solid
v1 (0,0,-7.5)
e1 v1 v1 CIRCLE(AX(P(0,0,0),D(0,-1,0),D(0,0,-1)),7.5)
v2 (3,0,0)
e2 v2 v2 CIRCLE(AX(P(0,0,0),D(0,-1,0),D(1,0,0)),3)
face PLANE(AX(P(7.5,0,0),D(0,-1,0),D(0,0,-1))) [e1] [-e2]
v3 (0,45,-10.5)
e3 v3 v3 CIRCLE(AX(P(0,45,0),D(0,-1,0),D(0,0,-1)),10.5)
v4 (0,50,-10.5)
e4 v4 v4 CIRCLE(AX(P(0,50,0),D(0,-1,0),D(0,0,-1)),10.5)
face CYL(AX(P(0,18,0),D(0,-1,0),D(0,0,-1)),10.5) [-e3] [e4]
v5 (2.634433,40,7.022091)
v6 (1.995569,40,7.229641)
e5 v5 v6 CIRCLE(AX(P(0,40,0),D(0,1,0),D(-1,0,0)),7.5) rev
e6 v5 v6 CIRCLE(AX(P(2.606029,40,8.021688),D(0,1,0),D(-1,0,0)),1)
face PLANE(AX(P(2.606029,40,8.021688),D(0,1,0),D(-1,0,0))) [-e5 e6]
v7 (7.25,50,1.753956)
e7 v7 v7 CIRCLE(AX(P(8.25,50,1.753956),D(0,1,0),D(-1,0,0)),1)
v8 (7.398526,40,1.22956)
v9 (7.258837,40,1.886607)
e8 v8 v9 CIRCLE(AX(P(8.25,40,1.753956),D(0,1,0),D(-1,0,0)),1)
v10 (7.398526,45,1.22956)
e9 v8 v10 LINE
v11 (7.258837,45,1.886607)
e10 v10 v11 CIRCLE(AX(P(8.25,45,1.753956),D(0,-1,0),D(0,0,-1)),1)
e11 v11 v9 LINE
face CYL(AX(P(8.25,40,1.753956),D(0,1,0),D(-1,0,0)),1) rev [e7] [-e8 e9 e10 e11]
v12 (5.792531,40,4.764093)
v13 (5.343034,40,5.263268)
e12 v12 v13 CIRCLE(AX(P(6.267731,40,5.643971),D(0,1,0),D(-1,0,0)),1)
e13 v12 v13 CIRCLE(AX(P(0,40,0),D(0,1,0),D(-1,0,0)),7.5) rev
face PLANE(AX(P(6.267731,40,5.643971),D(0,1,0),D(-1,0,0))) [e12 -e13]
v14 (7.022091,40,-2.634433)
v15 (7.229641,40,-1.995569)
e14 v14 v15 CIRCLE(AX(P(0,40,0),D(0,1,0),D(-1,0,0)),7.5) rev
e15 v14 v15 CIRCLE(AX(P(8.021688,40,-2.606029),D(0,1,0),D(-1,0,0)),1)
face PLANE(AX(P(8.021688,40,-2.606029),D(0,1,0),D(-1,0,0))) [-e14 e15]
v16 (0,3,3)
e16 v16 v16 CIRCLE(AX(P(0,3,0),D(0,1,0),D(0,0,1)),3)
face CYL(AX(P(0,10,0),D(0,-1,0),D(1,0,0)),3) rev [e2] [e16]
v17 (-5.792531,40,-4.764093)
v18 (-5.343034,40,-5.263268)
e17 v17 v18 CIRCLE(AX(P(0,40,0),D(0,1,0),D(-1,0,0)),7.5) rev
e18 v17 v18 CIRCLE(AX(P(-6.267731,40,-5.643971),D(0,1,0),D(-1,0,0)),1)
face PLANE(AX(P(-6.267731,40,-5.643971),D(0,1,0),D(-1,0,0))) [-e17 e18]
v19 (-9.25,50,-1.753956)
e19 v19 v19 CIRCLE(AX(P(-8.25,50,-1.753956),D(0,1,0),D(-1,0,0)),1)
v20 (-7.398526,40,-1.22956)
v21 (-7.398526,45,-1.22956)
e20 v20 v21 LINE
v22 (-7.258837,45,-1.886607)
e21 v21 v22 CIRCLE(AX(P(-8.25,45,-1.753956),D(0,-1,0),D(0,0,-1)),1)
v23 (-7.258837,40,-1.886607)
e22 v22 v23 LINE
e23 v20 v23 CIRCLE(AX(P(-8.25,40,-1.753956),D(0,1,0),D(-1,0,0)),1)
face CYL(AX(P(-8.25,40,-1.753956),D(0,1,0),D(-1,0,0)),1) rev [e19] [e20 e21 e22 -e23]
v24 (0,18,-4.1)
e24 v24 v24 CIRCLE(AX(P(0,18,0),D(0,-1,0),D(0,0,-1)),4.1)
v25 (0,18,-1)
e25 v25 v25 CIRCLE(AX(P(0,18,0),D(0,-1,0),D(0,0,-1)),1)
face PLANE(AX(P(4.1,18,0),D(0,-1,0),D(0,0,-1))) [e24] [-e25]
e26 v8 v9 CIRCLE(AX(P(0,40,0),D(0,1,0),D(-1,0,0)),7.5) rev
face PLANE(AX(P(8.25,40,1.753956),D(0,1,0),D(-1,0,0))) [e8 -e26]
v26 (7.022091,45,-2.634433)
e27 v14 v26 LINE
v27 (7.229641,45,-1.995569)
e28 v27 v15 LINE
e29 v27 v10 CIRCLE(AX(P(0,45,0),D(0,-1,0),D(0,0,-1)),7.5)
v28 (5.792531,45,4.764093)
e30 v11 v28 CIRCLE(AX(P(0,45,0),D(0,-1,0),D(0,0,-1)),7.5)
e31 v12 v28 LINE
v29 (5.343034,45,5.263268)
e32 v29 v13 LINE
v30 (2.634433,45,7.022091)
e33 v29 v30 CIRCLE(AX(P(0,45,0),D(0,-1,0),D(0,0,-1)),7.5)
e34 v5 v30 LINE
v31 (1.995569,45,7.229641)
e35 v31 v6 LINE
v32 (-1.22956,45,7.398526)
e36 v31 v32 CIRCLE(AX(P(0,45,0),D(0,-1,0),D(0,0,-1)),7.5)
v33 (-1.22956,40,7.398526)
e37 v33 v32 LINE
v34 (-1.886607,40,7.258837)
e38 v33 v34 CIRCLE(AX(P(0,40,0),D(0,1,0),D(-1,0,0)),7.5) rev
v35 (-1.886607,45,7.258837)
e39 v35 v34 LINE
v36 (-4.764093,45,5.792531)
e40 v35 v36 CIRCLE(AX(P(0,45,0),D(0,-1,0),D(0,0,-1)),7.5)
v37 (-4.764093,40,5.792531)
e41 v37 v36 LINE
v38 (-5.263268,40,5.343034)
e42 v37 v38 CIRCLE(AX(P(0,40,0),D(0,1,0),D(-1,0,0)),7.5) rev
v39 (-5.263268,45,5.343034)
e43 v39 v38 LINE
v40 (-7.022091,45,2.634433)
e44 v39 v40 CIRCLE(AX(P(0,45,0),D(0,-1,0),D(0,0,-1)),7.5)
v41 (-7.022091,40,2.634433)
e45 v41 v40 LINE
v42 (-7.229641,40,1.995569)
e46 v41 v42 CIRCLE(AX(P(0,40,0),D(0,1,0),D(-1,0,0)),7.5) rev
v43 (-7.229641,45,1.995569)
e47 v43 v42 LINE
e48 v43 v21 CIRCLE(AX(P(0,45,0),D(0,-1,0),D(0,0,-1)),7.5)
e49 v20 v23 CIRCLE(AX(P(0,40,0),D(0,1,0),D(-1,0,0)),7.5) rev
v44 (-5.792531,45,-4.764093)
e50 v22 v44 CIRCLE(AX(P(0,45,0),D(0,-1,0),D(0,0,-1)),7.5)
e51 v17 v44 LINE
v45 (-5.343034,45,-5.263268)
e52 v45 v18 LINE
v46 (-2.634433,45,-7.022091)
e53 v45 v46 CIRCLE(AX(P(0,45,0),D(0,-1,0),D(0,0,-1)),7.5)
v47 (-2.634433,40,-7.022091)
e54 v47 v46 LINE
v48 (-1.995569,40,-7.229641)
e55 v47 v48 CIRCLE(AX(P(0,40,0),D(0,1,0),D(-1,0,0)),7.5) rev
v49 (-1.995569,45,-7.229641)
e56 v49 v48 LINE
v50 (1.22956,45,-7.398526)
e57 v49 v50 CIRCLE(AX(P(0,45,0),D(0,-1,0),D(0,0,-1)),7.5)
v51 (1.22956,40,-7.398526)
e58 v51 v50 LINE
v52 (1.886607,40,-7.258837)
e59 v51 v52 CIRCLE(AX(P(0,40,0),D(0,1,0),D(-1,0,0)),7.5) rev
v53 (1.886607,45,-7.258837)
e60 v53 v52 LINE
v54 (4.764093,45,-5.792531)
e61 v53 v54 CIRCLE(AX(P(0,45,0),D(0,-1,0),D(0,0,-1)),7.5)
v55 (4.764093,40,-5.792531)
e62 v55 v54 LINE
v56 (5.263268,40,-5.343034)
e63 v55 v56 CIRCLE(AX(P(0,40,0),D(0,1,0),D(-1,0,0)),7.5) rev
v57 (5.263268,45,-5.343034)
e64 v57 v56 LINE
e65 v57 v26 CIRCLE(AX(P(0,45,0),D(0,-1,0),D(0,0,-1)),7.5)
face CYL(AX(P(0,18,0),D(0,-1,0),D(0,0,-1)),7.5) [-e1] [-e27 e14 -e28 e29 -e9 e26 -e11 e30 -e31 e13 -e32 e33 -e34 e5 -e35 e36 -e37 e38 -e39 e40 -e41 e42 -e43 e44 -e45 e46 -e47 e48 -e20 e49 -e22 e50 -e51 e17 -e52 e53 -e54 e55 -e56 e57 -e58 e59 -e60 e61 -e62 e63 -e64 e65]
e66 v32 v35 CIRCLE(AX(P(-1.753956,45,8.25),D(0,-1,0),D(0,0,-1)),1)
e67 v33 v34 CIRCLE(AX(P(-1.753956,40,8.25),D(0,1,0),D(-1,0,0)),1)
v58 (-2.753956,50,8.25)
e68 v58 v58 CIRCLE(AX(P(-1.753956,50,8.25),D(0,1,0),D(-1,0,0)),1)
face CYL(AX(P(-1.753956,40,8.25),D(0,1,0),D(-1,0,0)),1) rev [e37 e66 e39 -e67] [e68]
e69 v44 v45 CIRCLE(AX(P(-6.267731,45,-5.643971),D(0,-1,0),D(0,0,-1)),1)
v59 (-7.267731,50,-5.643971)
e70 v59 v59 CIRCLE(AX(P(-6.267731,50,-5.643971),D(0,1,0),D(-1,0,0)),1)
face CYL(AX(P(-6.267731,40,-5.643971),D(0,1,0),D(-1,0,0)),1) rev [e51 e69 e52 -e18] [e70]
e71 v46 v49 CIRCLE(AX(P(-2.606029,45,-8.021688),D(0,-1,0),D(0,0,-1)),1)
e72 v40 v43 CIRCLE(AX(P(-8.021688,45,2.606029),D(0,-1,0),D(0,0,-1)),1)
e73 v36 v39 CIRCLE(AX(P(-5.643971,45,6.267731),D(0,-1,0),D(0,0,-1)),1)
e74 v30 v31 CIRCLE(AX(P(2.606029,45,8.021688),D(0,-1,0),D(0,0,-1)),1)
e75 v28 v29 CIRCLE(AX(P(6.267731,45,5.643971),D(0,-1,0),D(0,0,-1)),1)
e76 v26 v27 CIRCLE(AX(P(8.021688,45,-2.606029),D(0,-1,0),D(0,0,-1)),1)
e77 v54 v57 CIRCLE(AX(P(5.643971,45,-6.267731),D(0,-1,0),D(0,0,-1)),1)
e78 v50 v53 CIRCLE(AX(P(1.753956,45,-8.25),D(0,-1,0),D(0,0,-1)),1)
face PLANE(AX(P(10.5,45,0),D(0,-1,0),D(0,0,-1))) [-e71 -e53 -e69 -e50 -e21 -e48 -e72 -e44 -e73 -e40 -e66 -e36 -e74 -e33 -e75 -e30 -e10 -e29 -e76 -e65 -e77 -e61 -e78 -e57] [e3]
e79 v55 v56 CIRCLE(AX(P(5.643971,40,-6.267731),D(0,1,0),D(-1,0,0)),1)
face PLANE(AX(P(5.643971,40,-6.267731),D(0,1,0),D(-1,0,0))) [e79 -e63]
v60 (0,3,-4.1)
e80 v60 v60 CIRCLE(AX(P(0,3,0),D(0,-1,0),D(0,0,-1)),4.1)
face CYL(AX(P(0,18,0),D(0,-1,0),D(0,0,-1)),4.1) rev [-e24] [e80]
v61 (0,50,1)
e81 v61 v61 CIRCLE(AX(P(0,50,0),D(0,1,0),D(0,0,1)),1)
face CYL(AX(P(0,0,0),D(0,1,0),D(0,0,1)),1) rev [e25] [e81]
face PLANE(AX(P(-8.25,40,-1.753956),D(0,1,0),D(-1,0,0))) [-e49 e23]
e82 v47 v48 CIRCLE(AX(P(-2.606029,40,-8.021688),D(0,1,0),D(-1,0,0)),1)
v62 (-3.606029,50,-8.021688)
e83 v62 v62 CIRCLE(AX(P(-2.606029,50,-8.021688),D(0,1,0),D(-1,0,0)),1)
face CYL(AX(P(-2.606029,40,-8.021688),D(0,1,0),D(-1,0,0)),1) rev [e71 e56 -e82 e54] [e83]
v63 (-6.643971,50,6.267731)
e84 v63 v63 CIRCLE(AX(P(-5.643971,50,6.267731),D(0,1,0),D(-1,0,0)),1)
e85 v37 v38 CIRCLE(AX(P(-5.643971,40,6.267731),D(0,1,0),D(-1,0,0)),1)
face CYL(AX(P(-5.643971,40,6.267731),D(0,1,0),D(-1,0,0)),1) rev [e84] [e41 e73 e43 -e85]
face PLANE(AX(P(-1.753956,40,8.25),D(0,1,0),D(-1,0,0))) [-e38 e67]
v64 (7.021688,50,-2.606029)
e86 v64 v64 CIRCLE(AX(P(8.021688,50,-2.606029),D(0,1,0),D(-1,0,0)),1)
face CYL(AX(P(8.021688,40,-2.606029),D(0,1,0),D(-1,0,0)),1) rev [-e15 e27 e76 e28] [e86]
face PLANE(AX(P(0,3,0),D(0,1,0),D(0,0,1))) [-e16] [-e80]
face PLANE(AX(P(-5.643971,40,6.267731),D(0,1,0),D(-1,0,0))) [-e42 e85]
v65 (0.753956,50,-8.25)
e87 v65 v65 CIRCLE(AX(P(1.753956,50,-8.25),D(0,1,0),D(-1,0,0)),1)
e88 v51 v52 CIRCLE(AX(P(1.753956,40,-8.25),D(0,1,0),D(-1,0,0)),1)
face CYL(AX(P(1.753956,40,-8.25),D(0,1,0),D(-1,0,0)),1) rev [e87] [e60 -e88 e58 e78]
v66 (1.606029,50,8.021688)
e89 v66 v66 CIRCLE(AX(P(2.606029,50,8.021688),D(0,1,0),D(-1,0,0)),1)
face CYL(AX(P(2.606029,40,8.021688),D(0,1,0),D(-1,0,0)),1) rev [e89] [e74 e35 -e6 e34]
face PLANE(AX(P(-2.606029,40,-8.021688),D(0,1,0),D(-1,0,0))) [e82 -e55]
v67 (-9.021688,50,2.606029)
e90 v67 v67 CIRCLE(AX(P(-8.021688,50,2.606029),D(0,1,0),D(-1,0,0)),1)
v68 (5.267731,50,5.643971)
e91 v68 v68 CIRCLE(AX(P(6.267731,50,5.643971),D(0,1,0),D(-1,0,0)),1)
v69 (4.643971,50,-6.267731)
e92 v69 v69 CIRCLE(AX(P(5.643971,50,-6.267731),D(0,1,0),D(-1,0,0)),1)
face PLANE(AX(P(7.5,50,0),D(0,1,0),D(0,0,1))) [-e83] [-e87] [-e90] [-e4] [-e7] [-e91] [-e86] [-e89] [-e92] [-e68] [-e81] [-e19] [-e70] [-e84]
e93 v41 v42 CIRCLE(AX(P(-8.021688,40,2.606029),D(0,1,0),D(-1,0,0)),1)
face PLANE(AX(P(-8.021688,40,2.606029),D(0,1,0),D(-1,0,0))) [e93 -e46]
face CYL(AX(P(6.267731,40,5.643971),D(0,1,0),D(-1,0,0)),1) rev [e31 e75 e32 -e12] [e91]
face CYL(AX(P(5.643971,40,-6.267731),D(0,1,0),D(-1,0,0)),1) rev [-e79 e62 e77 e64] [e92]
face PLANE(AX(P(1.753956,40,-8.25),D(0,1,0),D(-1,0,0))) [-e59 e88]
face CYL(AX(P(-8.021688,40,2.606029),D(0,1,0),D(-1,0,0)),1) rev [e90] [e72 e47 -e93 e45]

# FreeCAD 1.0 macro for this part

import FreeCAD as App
import Part
import Sketcher
from FreeCAD import Vector


def add_polygon(sketch, points):
    """Adds a closed chain of lines whose ends are joined by coincident constraints."""
    first, n = sketch.GeometryCount, len(points)
    for a, b in zip(points, points[1:] + points[:1]):
        sketch.addGeometry(Part.LineSegment(App.Vector(*a, 0), App.Vector(*b, 0)), False)
    for i in range(n):
        sketch.addConstraint(Sketcher.Constraint("Coincident", first + i, 2, first + (i + 1) % n, 1))

doc = App.newDocument("Part")
params = doc.addObject("Spreadsheet::Sheet", "Params")
for row, (alias, value) in enumerate([
    ("sketch1_width", "3 mm"),
    ("sketch1_height", "45 mm"),
    ("sketch1_height2", "5 mm"),
    ("sketch1_height3", "32 mm"),
    ("sketch1_width2", "7.5 mm"),
    ("revolution_angle", "360 deg"),
    ("sketch2_diameter", "2 mm"),
    ("pocket1_length", "10 mm"),
    ("sketch3_diameter", "6 mm"),
    ("pocket2_length", "10 mm"),
    ("sketch4_diameter", "2 mm"),
], start=1):
    params.set(f"A{row}", alias)
    params.set(f"B{row}", "=" + value)
    params.setAlias(f"B{row}", alias)

body = doc.addObject("PartDesign::Body", "Body")

# Sketch on XY plane
sketch1 = body.newObject("Sketcher::SketchObject", "Sketch")
sketch1.AttachmentSupport = (doc.getObject("XY_Plane"), [""])
sketch1.MapMode = "FlatFace"
add_polygon(sketch1, [(0, 3), (0, 0), (7.5, 0), (7.5, 45), (10.5, 45), (10.5, 50), (0, 50), (0, 18), (4.1, 18), (4.1, 3)])  # lines 0-9
sketch1.addConstraint(Sketcher.Constraint("Vertical", 0))
sketch1.addConstraint(Sketcher.Constraint("Horizontal", 1))
sketch1.addConstraint(Sketcher.Constraint("Vertical", 2))
sketch1.addConstraint(Sketcher.Constraint("Horizontal", 3))
sketch1.addConstraint(Sketcher.Constraint("Vertical", 4))
sketch1.addConstraint(Sketcher.Constraint("Horizontal", 5))
sketch1.addConstraint(Sketcher.Constraint("Vertical", 6))
sketch1.addConstraint(Sketcher.Constraint("Horizontal", 7))
sketch1.addConstraint(Sketcher.Constraint("Vertical", 8))
sketch1.addConstraint(Sketcher.Constraint("Horizontal", 9))
sketch1.addConstraint(Sketcher.Constraint("Coincident", 0, 2, -1, 1))
sketch1.addConstraint(Sketcher.Constraint("PointOnObject", 5, 2, -2))
sketch1.addConstraint(Sketcher.Constraint("Equal", 3, 0))
sketch1.addConstraint(Sketcher.Constraint("DistanceX", 3, 1, 3, 2, 3.0))
sketch1.addConstraint(Sketcher.Constraint("DistanceY", 2, 1, 2, 2, 45.0))
sketch1.addConstraint(Sketcher.Constraint("DistanceY", 4, 1, 4, 2, 5.0))
sketch1.addConstraint(Sketcher.Constraint("DistanceY", 6, 2, 6, 1, 32.0))
sketch1.addConstraint(Sketcher.Constraint("DistanceX", 1, 1, 1, 2, 7.5))
sketch1.addConstraint(Sketcher.Constraint("DistanceX", 7, 1, 7, 2, 4.1))
sketch1.setExpression("Constraints[23]", "Params.sketch1_width")
sketch1.setExpression("Constraints[24]", "Params.sketch1_height")
sketch1.setExpression("Constraints[25]", "Params.sketch1_height2")
sketch1.setExpression("Constraints[26]", "Params.sketch1_height3")
sketch1.setExpression("Constraints[27]", "Params.sketch1_width2")
revolution = body.newObject("PartDesign::Revolution", "Revolution")
revolution.Profile = sketch1
revolution.ReferenceAxis = (sketch1, ["V_Axis"])
revolution.setExpression("Angle", "Params.revolution_angle")

# Sketch on XZ plane
sketch2 = body.newObject("Sketcher::SketchObject", "Sketch001")
sketch2.AttachmentSupport = (doc.getObject("XZ_Plane"), [""])
sketch2.MapMode = "FlatFace"
sketch2.AttachmentOffset = App.Placement(Vector(0, 0, -50), App.Rotation())
sketch2.addGeometry(Part.Circle(Vector(-2.6, -8, 0), Vector(0, 0, 1), 1), False)
sketch2.addGeometry(Part.Circle(Vector(1.8, -8.2, 0), Vector(0, 0, 1), 1), False)
sketch2.addGeometry(Part.Circle(Vector(5.6, -6.3, 0), Vector(0, 0, 1), 1), False)
sketch2.addGeometry(Part.Circle(Vector(8, -2.6, 0), Vector(0, 0, 1), 1), False)
sketch2.addGeometry(Part.Circle(Vector(8.2, 1.8, 0), Vector(0, 0, 1), 1), False)
sketch2.addGeometry(Part.Circle(Vector(6.3, 5.6, 0), Vector(0, 0, 1), 1), False)
sketch2.addGeometry(Part.Circle(Vector(2.6, 8, 0), Vector(0, 0, 1), 1), False)
sketch2.addGeometry(Part.Circle(Vector(-1.8, 8.2, 0), Vector(0, 0, 1), 1), False)
sketch2.addGeometry(Part.Circle(Vector(-5.6, 6.3, 0), Vector(0, 0, 1), 1), False)
sketch2.addGeometry(Part.Circle(Vector(-8, 2.6, 0), Vector(0, 0, 1), 1), False)
sketch2.addGeometry(Part.Circle(Vector(-8.2, -1.8, 0), Vector(0, 0, 1), 1), False)
sketch2.addGeometry(Part.Circle(Vector(-6.3, -5.6, 0), Vector(0, 0, 1), 1), False)
sketch2.addConstraint(Sketcher.Constraint("Equal", 0, 1))
sketch2.addConstraint(Sketcher.Constraint("Equal", 1, 2))
sketch2.addConstraint(Sketcher.Constraint("Equal", 2, 3))
sketch2.addConstraint(Sketcher.Constraint("Equal", 3, 4))
sketch2.addConstraint(Sketcher.Constraint("Equal", 4, 5))
sketch2.addConstraint(Sketcher.Constraint("Equal", 5, 6))
sketch2.addConstraint(Sketcher.Constraint("Equal", 6, 7))
sketch2.addConstraint(Sketcher.Constraint("Equal", 7, 8))
sketch2.addConstraint(Sketcher.Constraint("Equal", 8, 9))
sketch2.addConstraint(Sketcher.Constraint("Equal", 9, 10))
sketch2.addConstraint(Sketcher.Constraint("Equal", 10, 11))
sketch2.addConstraint(Sketcher.Constraint("Symmetric", 0, 3, 6, 3, -1, 1))
sketch2.addConstraint(Sketcher.Constraint("Symmetric", 1, 3, 7, 3, -1, 1))
sketch2.addConstraint(Sketcher.Constraint("Symmetric", 2, 3, 8, 3, -1, 1))
sketch2.addConstraint(Sketcher.Constraint("Symmetric", 3, 3, 9, 3, -1, 1))
sketch2.addConstraint(Sketcher.Constraint("Symmetric", 4, 3, 10, 3, -1, 1))
sketch2.addConstraint(Sketcher.Constraint("Symmetric", 5, 3, 11, 3, -1, 1))
sketch2.addConstraint(Sketcher.Constraint("Diameter", 0, 2.0))
sketch2.addConstraint(Sketcher.Constraint("DistanceY", 1, 3, -1, 1, 8.25))
sketch2.addConstraint(Sketcher.Constraint("DistanceX", -1, 1, 4, 3, 8.25))
sketch2.addConstraint(Sketcher.Constraint("DistanceX", 0, 3, 2, 3, 8.25))
sketch2.addConstraint(Sketcher.Constraint("DistanceY", 3, 3, 5, 3, 8.25))
sketch2.addConstraint(Sketcher.Constraint("DistanceX", 0, 3, -1, 1, 2.606029))
sketch2.addConstraint(Sketcher.Constraint("DistanceY", 2, 3, -1, 1, 6.267731))
sketch2.addConstraint(Sketcher.Constraint("DistanceY", 3, 3, -1, 1, 2.606029))
sketch2.addConstraint(Sketcher.Constraint("DistanceX", -1, 1, 5, 3, 6.267731))
sketch2.addConstraint(Sketcher.Constraint("DistanceX", 1, 3, 3, 3, 6.267731))
sketch2.addConstraint(Sketcher.Constraint("DistanceY", 0, 3, 3, 3, 5.415659))
sketch2.addConstraint(Sketcher.Constraint("DistanceY", 4, 3, 6, 3, 6.267731))
sketch2.addConstraint(Sketcher.Constraint("DistanceX", 6, 3, 3, 3, 5.415659))
sketch2.setExpression("Constraints[17]", "Params.sketch2_diameter")
pocket1 = body.newObject("PartDesign::Pocket", "Pocket")
pocket1.Profile = sketch2
pocket1.setExpression("Length", "Params.pocket1_length")
pocket1.Reversed = True

# Sketch on XZ plane
sketch3 = body.newObject("Sketcher::SketchObject", "Sketch002")
sketch3.AttachmentSupport = (doc.getObject("XZ_Plane"), [""])
sketch3.MapMode = "FlatFace"
sketch3.addGeometry(Part.Circle(Vector(0, 0, 0), Vector(0, 0, 1), 3), False)
sketch3.addConstraint(Sketcher.Constraint("Coincident", 0, 3, -1, 1))
sketch3.addConstraint(Sketcher.Constraint("Diameter", 0, 6.0))
sketch3.setExpression("Constraints[1]", "Params.sketch3_diameter")
pocket2 = body.newObject("PartDesign::Pocket", "Pocket001")
pocket2.Profile = sketch3
pocket2.setExpression("Length", "Params.pocket2_length")

# Sketch on XZ plane
sketch4 = body.newObject("Sketcher::SketchObject", "Sketch003")
sketch4.AttachmentSupport = (doc.getObject("XZ_Plane"), [""])
sketch4.MapMode = "FlatFace"
sketch4.AttachmentOffset = App.Placement(Vector(0, 0, -50), App.Rotation())
sketch4.addGeometry(Part.Circle(Vector(0, 0, 0), Vector(0, 0, 1), 1), False)
sketch4.addConstraint(Sketcher.Constraint("Coincident", 0, 3, -1, 1))
sketch4.addConstraint(Sketcher.Constraint("Diameter", 0, 2.0))
sketch4.setExpression("Constraints[1]", "Params.sketch4_diameter")
pocket3 = body.newObject("PartDesign::Pocket", "Pocket002")
pocket3.Profile = sketch4
pocket3.Type = "ThroughAll"
pocket3.Reversed = True

doc.recompute()
